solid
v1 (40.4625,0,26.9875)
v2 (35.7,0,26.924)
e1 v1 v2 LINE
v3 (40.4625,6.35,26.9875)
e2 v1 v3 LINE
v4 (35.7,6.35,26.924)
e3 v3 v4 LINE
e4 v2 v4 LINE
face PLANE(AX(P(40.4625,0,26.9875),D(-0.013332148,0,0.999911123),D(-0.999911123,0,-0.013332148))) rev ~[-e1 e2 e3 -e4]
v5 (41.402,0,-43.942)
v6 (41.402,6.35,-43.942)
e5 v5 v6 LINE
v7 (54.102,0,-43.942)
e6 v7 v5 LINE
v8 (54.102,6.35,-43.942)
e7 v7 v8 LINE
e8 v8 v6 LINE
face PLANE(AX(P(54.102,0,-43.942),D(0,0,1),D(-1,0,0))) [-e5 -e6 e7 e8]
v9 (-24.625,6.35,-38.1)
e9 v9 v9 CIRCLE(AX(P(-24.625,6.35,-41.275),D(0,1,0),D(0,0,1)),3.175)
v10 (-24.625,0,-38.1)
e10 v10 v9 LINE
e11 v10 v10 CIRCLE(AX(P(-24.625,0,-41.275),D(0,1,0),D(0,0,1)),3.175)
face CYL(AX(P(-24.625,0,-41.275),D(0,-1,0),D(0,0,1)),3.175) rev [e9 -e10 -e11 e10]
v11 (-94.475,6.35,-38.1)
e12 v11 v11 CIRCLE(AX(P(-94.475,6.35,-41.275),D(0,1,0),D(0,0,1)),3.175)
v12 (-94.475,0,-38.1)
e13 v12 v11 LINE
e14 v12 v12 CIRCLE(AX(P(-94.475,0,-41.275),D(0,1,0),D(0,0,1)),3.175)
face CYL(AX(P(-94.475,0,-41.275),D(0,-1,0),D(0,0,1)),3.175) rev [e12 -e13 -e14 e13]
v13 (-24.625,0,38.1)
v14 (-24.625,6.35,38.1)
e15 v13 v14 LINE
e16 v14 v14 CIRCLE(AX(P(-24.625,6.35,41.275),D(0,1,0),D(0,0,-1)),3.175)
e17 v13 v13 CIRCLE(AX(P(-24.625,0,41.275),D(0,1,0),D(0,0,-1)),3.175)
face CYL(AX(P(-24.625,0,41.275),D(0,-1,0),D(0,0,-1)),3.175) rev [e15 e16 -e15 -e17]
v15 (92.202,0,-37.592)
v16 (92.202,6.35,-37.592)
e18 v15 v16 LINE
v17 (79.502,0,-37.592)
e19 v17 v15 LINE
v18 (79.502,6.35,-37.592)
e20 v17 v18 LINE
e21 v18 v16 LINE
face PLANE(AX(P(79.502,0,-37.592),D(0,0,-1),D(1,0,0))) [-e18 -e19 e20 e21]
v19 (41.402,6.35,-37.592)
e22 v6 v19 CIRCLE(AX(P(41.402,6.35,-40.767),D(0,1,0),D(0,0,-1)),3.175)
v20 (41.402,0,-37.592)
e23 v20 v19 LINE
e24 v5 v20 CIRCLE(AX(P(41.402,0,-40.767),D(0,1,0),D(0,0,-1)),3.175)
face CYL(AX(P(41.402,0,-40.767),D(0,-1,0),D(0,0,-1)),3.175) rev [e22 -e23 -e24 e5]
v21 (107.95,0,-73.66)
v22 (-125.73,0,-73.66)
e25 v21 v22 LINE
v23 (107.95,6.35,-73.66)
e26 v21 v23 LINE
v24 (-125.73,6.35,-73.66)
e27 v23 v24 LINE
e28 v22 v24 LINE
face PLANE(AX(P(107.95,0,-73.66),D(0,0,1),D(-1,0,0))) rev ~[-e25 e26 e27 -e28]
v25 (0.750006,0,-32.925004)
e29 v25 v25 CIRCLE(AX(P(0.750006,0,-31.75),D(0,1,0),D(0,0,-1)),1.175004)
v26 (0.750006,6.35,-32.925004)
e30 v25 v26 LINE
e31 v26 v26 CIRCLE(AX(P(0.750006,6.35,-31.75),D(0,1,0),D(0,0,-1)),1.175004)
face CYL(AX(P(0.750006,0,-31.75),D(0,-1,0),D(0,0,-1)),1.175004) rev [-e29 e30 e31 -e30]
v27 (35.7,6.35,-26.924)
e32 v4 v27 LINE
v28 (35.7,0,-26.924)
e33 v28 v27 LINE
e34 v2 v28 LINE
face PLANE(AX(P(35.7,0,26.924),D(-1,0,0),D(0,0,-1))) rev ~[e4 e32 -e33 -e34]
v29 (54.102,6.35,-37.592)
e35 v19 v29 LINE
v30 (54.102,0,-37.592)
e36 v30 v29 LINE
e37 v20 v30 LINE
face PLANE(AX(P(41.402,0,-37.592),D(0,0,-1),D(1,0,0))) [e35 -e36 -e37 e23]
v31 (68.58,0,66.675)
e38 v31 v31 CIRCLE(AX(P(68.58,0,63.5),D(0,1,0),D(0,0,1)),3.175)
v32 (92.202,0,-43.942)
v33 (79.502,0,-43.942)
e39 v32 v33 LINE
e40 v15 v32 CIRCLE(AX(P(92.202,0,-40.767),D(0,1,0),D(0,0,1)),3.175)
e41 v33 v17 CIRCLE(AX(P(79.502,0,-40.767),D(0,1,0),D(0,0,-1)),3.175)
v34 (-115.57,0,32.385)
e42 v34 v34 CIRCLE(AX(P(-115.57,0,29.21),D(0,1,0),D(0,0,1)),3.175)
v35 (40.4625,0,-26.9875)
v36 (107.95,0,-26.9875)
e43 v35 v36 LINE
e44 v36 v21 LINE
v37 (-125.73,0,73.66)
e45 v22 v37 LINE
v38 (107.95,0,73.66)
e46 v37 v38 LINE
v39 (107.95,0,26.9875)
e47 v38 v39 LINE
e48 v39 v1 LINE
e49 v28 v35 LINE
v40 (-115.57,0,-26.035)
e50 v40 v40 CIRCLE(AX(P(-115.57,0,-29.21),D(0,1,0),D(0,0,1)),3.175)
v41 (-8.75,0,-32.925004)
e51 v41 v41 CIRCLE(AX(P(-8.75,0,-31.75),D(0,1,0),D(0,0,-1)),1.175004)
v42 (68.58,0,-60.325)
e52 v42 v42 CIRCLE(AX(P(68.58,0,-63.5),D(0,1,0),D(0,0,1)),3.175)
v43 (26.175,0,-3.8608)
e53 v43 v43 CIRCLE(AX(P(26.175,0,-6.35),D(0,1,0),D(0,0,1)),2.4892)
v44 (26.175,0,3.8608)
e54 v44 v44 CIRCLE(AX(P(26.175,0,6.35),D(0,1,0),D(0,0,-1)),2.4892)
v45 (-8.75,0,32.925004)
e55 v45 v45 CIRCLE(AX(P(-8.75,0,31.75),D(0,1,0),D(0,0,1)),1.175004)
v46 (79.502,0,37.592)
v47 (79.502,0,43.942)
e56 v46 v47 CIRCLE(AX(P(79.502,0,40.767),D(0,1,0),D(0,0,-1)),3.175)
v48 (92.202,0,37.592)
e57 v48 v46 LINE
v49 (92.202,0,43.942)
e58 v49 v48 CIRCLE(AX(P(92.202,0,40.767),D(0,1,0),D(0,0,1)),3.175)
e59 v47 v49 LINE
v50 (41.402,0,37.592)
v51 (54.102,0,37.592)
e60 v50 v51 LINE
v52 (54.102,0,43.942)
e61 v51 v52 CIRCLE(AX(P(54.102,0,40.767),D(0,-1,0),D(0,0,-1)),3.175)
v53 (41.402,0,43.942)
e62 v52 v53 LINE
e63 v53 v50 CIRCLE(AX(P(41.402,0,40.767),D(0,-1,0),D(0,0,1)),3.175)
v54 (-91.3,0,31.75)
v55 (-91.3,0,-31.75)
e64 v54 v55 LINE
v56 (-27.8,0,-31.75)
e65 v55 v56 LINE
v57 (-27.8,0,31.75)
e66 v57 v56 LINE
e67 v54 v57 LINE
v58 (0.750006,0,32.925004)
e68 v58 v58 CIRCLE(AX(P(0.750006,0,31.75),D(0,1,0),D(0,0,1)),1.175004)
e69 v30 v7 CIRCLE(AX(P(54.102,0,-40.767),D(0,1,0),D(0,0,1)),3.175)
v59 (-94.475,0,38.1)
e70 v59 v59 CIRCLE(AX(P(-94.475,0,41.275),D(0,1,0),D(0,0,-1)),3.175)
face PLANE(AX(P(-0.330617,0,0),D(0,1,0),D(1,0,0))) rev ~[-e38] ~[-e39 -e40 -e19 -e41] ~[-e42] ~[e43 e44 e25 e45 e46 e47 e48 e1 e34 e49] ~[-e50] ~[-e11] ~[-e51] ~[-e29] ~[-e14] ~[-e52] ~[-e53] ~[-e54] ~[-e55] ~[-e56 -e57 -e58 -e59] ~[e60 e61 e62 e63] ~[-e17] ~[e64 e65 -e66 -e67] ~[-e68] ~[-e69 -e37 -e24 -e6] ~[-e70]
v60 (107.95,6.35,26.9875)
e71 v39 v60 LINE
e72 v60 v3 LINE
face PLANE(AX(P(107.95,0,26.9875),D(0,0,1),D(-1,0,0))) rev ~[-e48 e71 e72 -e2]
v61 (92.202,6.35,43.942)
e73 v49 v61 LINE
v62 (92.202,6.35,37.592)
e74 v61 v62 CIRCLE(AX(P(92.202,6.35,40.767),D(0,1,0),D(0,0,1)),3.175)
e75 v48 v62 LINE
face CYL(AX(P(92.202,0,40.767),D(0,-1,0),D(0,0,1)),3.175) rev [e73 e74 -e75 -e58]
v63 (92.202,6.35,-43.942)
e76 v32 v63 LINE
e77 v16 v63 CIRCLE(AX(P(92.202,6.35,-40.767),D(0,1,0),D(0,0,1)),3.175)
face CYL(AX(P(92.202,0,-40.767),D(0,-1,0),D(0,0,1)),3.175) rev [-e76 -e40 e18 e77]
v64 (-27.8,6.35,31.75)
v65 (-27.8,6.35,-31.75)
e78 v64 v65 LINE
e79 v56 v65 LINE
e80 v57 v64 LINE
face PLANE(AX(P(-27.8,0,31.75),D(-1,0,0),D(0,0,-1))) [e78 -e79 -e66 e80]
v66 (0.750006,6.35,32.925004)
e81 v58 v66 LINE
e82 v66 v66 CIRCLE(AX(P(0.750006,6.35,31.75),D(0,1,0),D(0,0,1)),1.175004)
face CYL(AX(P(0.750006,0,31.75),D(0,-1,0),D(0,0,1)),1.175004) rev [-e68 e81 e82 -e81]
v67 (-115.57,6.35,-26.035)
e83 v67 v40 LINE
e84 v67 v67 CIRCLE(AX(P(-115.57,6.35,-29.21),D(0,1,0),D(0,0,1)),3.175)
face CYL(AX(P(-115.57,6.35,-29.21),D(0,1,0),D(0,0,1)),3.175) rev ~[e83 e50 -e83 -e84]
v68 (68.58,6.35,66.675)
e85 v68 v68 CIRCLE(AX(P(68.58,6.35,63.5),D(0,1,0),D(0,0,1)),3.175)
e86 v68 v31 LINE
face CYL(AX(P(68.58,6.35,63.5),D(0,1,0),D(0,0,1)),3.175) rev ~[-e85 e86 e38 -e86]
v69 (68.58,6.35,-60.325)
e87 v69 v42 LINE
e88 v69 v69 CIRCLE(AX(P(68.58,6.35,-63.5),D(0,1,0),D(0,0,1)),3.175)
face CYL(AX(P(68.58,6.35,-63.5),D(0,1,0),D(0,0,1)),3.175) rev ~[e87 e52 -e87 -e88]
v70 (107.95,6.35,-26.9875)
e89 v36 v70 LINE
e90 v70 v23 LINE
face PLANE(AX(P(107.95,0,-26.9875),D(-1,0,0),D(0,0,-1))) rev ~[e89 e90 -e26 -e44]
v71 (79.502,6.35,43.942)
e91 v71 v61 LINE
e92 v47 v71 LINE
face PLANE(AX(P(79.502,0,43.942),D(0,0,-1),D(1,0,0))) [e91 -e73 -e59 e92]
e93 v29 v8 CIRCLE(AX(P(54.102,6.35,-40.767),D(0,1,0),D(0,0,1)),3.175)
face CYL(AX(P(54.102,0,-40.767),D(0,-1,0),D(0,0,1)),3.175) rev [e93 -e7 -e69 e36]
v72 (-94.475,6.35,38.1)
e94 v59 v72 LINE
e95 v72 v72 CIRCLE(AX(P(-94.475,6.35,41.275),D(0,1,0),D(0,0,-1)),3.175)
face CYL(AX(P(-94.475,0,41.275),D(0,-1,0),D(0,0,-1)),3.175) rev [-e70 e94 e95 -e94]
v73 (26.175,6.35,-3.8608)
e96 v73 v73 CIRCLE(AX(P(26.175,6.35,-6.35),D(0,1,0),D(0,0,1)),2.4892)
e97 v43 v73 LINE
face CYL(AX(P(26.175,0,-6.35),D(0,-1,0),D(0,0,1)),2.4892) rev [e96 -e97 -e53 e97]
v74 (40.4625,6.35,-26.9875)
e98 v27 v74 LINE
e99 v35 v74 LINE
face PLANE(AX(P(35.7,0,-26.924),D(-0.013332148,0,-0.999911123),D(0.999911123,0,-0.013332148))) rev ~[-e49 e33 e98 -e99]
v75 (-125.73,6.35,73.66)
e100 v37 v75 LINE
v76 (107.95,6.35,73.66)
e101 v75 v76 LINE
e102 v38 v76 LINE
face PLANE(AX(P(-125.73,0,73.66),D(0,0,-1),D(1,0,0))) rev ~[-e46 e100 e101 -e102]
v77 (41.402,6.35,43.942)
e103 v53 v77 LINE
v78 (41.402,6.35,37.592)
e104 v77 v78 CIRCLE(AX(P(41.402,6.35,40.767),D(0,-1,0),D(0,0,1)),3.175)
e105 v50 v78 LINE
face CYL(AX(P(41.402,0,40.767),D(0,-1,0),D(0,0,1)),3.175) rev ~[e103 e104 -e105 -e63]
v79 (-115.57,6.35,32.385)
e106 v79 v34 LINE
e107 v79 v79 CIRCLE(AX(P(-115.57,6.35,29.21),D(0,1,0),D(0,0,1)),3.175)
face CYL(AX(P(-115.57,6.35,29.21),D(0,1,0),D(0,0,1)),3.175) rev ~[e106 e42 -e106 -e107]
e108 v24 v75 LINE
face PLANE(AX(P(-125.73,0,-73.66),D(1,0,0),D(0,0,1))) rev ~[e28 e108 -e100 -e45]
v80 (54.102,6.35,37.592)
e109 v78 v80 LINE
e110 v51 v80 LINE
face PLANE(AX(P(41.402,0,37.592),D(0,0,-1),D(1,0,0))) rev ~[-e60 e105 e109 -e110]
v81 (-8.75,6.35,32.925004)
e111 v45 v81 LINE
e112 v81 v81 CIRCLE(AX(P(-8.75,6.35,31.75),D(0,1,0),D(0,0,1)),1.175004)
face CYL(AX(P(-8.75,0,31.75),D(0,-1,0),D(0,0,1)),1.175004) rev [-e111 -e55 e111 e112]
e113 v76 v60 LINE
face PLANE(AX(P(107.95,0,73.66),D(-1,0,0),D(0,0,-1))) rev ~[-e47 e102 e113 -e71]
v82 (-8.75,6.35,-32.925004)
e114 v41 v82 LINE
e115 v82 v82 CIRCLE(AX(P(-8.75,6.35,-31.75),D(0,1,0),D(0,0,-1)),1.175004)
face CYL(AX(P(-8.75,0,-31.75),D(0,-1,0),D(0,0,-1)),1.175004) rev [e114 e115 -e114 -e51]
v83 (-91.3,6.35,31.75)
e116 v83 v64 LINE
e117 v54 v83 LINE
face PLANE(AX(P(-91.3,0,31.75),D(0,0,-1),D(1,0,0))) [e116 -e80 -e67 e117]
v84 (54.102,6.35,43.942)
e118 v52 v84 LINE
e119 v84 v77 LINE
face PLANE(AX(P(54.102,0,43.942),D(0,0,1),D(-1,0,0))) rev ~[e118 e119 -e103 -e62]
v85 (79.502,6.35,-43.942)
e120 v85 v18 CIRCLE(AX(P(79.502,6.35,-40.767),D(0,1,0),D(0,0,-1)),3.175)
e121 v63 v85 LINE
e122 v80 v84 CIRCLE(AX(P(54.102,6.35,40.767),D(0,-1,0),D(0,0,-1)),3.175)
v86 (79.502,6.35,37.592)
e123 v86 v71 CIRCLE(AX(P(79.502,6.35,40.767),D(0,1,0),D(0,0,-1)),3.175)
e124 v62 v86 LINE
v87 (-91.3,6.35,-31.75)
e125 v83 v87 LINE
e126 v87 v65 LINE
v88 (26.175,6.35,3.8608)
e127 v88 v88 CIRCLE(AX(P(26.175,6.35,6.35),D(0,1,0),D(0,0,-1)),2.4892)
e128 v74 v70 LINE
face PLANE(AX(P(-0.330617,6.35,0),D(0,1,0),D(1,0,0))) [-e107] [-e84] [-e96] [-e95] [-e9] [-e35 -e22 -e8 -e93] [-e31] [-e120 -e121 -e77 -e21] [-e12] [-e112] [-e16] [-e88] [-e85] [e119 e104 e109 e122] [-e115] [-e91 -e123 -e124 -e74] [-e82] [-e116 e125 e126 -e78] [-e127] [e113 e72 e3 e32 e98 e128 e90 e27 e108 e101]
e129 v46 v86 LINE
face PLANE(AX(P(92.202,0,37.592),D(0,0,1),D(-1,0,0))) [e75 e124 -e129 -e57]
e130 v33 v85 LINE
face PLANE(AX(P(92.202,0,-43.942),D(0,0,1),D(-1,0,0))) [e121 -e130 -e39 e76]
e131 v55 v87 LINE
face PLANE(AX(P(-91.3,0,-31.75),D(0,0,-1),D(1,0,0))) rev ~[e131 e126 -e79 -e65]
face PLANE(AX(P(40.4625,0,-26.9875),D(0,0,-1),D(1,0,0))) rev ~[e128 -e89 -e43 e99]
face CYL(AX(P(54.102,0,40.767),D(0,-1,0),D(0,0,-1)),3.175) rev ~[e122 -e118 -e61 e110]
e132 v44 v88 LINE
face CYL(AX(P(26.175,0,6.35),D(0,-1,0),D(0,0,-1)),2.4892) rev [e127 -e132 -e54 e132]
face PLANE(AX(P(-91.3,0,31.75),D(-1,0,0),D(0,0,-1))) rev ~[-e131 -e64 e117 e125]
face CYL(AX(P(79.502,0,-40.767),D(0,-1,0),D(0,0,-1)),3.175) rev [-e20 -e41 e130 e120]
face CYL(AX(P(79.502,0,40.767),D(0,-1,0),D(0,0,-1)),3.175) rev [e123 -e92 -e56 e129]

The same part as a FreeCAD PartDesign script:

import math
import FreeCAD as App
import Part
import Sketcher

V = App.Vector
Q = App.Units.Quantity

doc = App.newDocument("Part")
body = doc.addObject("PartDesign::Body", "Body")

# Sketch on XZ plane
sketch1 = body.newObject("Sketcher::SketchObject", "Sketch")
sketch1.AttachmentSupport = (doc.getObject("XZ_Plane"), [""])
sketch1.MapMode = "FlatFace"
sketch1.addGeometry([
    Part.LineSegment(V(108, 73.7, 0), V(108, 27, 0)),  # 0
    Part.LineSegment(V(108, 27, 0), V(40.5, 27, 0)),  # 1
    Part.LineSegment(V(40.5, 27, 0), V(35.7, 26.9, 0)),  # 2
    Part.LineSegment(V(35.7, 26.9, 0), V(35.7, -26.9, 0)),  # 3
    Part.LineSegment(V(35.7, -26.9, 0), V(40.5, -27, 0)),  # 4
    Part.LineSegment(V(40.5, -27, 0), V(108, -27, 0)),  # 5
    Part.LineSegment(V(108, -27, 0), V(108, -73.7, 0)),  # 6
    Part.LineSegment(V(108, -73.7, 0), V(-125.7, -73.7, 0)),  # 7
    Part.LineSegment(V(-125.7, -73.7, 0), V(-125.7, 73.7, 0)),  # 8
    Part.LineSegment(V(-125.7, 73.7, 0), V(108, 73.7, 0)),  # 9
    Part.Circle(V(-94.5, 41.3, 0), V(0, 0, 1), 3.2),  # 10
    Part.Circle(V(-24.6, 41.3, 0), V(0, 0, 1), 3.2),  # 11
    Part.Circle(V(-8.8, 31.8, 0), V(0, 0, 1), 1.2),  # 12
    Part.Circle(V(0.8, 31.8, 0), V(0, 0, 1), 1.2),  # 13
    Part.ArcOfCircle(Part.Circle(V(41.4, 40.8, 0), V(0, 0, 1), 3.2), math.radians(90), math.radians(270)),  # 14
    Part.LineSegment(V(41.4, 37.6, 0), V(54.1, 37.6, 0)),  # 15
    Part.ArcOfCircle(Part.Circle(V(54.1, 40.8, 0), V(0, 0, 1), 3.2), math.radians(-90), math.radians(90)),  # 16
    Part.LineSegment(V(54.1, 43.9, 0), V(41.4, 43.9, 0)),  # 17
    Part.LineSegment(V(92.2, 43.9, 0), V(79.5, 43.9, 0)),  # 18
    Part.ArcOfCircle(Part.Circle(V(79.5, 40.8, 0), V(0, 0, 1), 3.2), math.radians(90), math.radians(270)),  # 19
    Part.LineSegment(V(79.5, 37.6, 0), V(92.2, 37.6, 0)),  # 20
    Part.ArcOfCircle(Part.Circle(V(92.2, 40.8, 0), V(0, 0, 1), 3.2), math.radians(-90), math.radians(90)),  # 21
    Part.Circle(V(26.2, 6.3, 0), V(0, 0, 1), 2.5),  # 22
    Part.LineSegment(V(-27.8, 31.8, 0), V(-91.3, 31.8, 0)),  # 23
    Part.LineSegment(V(-91.3, 31.8, 0), V(-91.3, -31.8, 0)),  # 24
    Part.LineSegment(V(-91.3, -31.8, 0), V(-27.8, -31.8, 0)),  # 25
    Part.LineSegment(V(-27.8, -31.8, 0), V(-27.8, 31.8, 0)),  # 26
    Part.Circle(V(-94.5, -41.3, 0), V(0, 0, 1), 3.2),  # 27
    Part.Circle(V(-8.8, -31.8, 0), V(0, 0, 1), 1.2),  # 28
    Part.Circle(V(-24.6, -41.3, 0), V(0, 0, 1), 3.2),  # 29
    Part.Circle(V(26.2, -6.3, 0), V(0, 0, 1), 2.5),  # 30
    Part.Circle(V(0.8, -31.8, 0), V(0, 0, 1), 1.2),  # 31
    Part.LineSegment(V(54.1, -37.6, 0), V(41.4, -37.6, 0)),  # 32
    Part.ArcOfCircle(Part.Circle(V(41.4, -40.8, 0), V(0, 0, 1), 3.2), math.radians(90), math.radians(270)),  # 33
    Part.LineSegment(V(41.4, -43.9, 0), V(54.1, -43.9, 0)),  # 34
    Part.ArcOfCircle(Part.Circle(V(54.1, -40.8, 0), V(0, 0, 1), 3.2), math.radians(-90), math.radians(90)),  # 35
    Part.LineSegment(V(92.2, -37.6, 0), V(79.5, -37.6, 0)),  # 36
    Part.ArcOfCircle(Part.Circle(V(79.5, -40.8, 0), V(0, 0, 1), 3.2), math.radians(90), math.radians(270)),  # 37
    Part.LineSegment(V(79.5, -43.9, 0), V(92.2, -43.9, 0)),  # 38
    Part.ArcOfCircle(Part.Circle(V(92.2, -40.8, 0), V(0, 0, 1), 3.2), math.radians(-90), math.radians(90)),  # 39
], False)
sketch1.addConstraint([
    Sketcher.Constraint("Coincident", 0, 2, 1, 1),
    Sketcher.Constraint("Coincident", 1, 2, 2, 1),
    Sketcher.Constraint("Coincident", 2, 2, 3, 1),
    Sketcher.Constraint("Coincident", 3, 2, 4, 1),
    Sketcher.Constraint("Coincident", 4, 2, 5, 1),
    Sketcher.Constraint("Coincident", 5, 2, 6, 1),
    Sketcher.Constraint("Coincident", 6, 2, 7, 1),
    Sketcher.Constraint("Coincident", 7, 2, 8, 1),
    Sketcher.Constraint("Coincident", 8, 2, 9, 1),
    Sketcher.Constraint("Coincident", 9, 2, 0, 1),
    Sketcher.Constraint("Tangent", 14, 2, 15, 1),
    Sketcher.Constraint("Tangent", 15, 2, 16, 1),
    Sketcher.Constraint("Tangent", 16, 2, 17, 1),
    Sketcher.Constraint("Tangent", 17, 2, 14, 1),
    Sketcher.Constraint("Tangent", 18, 2, 19, 1),
    Sketcher.Constraint("Tangent", 19, 2, 20, 1),
    Sketcher.Constraint("Tangent", 20, 2, 21, 1),
    Sketcher.Constraint("Tangent", 21, 2, 18, 1),
    Sketcher.Constraint("Coincident", 23, 2, 24, 1),
    Sketcher.Constraint("Coincident", 24, 2, 25, 1),
    Sketcher.Constraint("Coincident", 25, 2, 26, 1),
    Sketcher.Constraint("Coincident", 26, 2, 23, 1),
    Sketcher.Constraint("Tangent", 32, 2, 33, 1),
    Sketcher.Constraint("Tangent", 33, 2, 34, 1),
    Sketcher.Constraint("Tangent", 34, 2, 35, 1),
    Sketcher.Constraint("Tangent", 35, 2, 32, 1),
    Sketcher.Constraint("Tangent", 36, 2, 37, 1),
    Sketcher.Constraint("Tangent", 37, 2, 38, 1),
    Sketcher.Constraint("Tangent", 38, 2, 39, 1),
    Sketcher.Constraint("Tangent", 39, 2, 36, 1),
    Sketcher.Constraint("Vertical", 0),
    Sketcher.Constraint("Horizontal", 1),
    Sketcher.Constraint("Vertical", 3),
    Sketcher.Constraint("Horizontal", 5),
    Sketcher.Constraint("Vertical", 6),
    Sketcher.Constraint("Horizontal", 7),
    Sketcher.Constraint("Vertical", 8),
    Sketcher.Constraint("Horizontal", 9),
    Sketcher.Constraint("Horizontal", 15),
    Sketcher.Constraint("Horizontal", 17),
    Sketcher.Constraint("Horizontal", 18),
    Sketcher.Constraint("Horizontal", 20),
    Sketcher.Constraint("Horizontal", 23),
    Sketcher.Constraint("Vertical", 24),
    Sketcher.Constraint("Horizontal", 25),
    Sketcher.Constraint("Vertical", 26),
    Sketcher.Constraint("Horizontal", 32),
    Sketcher.Constraint("Horizontal", 34),
    Sketcher.Constraint("Horizontal", 36),
    Sketcher.Constraint("Horizontal", 38),
    Sketcher.Constraint("Equal", 10, 11),
    Sketcher.Constraint("Equal", 12, 13),
    Sketcher.Constraint("Equal", 11, 14),
    Sketcher.Constraint("Equal", 16, 19),
    Sketcher.Constraint("Equal", 21, 27),
    Sketcher.Constraint("Equal", 13, 28),
    Sketcher.Constraint("Equal", 27, 29),
    Sketcher.Constraint("Equal", 22, 30),
    Sketcher.Constraint("Equal", 28, 31),
    Sketcher.Constraint("Equal", 29, 33),
    Sketcher.Constraint("Equal", 35, 37),
    Sketcher.Constraint("Symmetric", 10, 3, 27, 3, -1),
    Sketcher.Constraint("Symmetric", 12, 3, 28, 3, -1),
    Sketcher.Constraint("Symmetric", 11, 3, 29, 3, -1),
    Sketcher.Constraint("Symmetric", 22, 3, 30, 3, -1),
    Sketcher.Constraint("Symmetric", 13, 3, 31, 3, -1),
    Sketcher.Constraint("Symmetric", 14, 3, 33, 3, -1),
    Sketcher.Constraint("Symmetric", 19, 3, 37, 3, -1),
    Sketcher.Constraint("Symmetric", 1, 2, 4, 2, -1),
    Sketcher.Constraint("Symmetric", 6, 2, 9, 2, -1),
    Sketcher.Constraint("Horizontal", 10, 3, 11, 3),
    Sketcher.Constraint("Horizontal", 12, 3, 13, 3),
    Sketcher.Constraint("Horizontal", 16, 3, 19, 3),
    Sketcher.Constraint("Horizontal", 13, 3, 23, 2),
    Sketcher.Constraint("Horizontal", 31, 3, 24, 2),
    Sketcher.Constraint("Vertical", 16, 3, 35, 3),
    Sketcher.Constraint("Vertical", 21, 3, 39, 3),
    Sketcher.Constraint("Equal", 17, 18),
    Sketcher.Constraint("Equal", 25, 24),
    Sketcher.Constraint("Equal", 2, 4),
    Sketcher.Constraint("Diameter", 10, Q("0.25 in")),
    Sketcher.Constraint("Diameter", 22, Q("0.196 in")),
    Sketcher.Constraint("DistanceX", 7, 2, 7, 1, Q("9.2 in")),
    Sketcher.Constraint("DistanceX", 15, 1, 15, 2, Q("0.5 in")),
    Sketcher.Constraint("DistanceX", 23, 2, 23, 1, Q("2.5 in")),
    Sketcher.Constraint("DistanceY", 8, 1, 8, 2, Q("5.8 in")),
    Sketcher.Constraint("DistanceX", 16, 3, 19, 3, Q("1 in")),
    Sketcher.Constraint("DistanceY", 22, 3, 13, 3, Q("1 in")),
    Sketcher.Constraint("DistanceX", 11, 3, 22, 3, Q("2 in")),
    Sketcher.Constraint("DistanceY", 3, 2, 3, 1, Q("2.12 in")),
    Sketcher.Constraint("DistanceX", -1, 1, 14, 3, Q("1.63 in")),
    Sketcher.Constraint("DistanceX", -1, 1, 0, 2, Q("4.25 in")),
    Sketcher.Constraint("DistanceY", -1, 1, 14, 2, Q("1.48 in")),
    Sketcher.Constraint("DistanceX", 10, 3, 11, 3, Q("2.75 in")),
    Sketcher.Constraint("DistanceY", 14, 3, 11, 3, Q("0.02 in")),
    Sketcher.Constraint("DistanceX", 23, 2, 12, 3, Q("3.25 in")),
    Sketcher.Constraint("DistanceY", 0, 2, 0, 1, Q("1.8375 in")),
    Sketcher.Constraint("DistanceX", 11, 3, 12, 3, Q("0.625 in")),
    Sketcher.Constraint("DistanceX", 22, 3, 1, 2, Q("0.5625 in")),
    Sketcher.Constraint("DistanceX", 2, 2, 1, 2, Q("0.1875 in")),
    Sketcher.Constraint("Diameter", 12, 2.350008),
    Sketcher.Constraint("DistanceX", 1, 2, 1, 1, 67.4875),
    Sketcher.Constraint("DistanceX", -1, 1, 13, 3, 0.750006),
])
pad1 = body.newObject("PartDesign::Pad", "Pad")
pad1.Profile = sketch1
pad1.Length = Q("0.25 in")
pad1.Reversed = True

# Sketch on XZ plane
sketch2 = body.newObject("Sketcher::SketchObject", "Sketch001")
sketch2.AttachmentSupport = (doc.getObject("XZ_Plane"), [""])
sketch2.MapMode = "FlatFace"
sketch2.AttachmentOffset = App.Placement(V(0, 0, -0.25 * 25.4), App.Rotation())
sketch2.addGeometry([
    Part.Circle(V(-115.6, -29.2, 0), V(0, 0, 1), 3.2),
    Part.Circle(V(-115.6, 29.2, 0), V(0, 0, 1), 3.2),
    Part.Circle(V(68.6, -63.5, 0), V(0, 0, 1), 3.2),
    Part.Circle(V(68.6, 63.5, 0), V(0, 0, 1), 3.2),
], False)
sketch2.addConstraint([
    Sketcher.Constraint("Equal", 0, 1),
    Sketcher.Constraint("Equal", 1, 2),
    Sketcher.Constraint("Equal", 2, 3),
    Sketcher.Constraint("Symmetric", 0, 3, 1, 3, -1),
    Sketcher.Constraint("Symmetric", 2, 3, 3, 3, -1),
    Sketcher.Constraint("Diameter", 0, Q("0.25 in")),
    Sketcher.Constraint("DistanceY", 2, 3, 3, 3, Q("5 in")),
    Sketcher.Constraint("DistanceX", -1, 1, 2, 3, Q("2.7 in")),
    Sketcher.Constraint("DistanceY", 0, 3, 1, 3, Q("2.3 in")),
    Sketcher.Constraint("DistanceX", 0, 3, -1, 1, Q("4.55 in")),
])
pocket1 = body.newObject("PartDesign::Pocket", "Pocket")
pocket1.Profile = sketch2
pocket1.Length = Q("0.25 in")
pocket1.Reversed = True

doc.recompute()
